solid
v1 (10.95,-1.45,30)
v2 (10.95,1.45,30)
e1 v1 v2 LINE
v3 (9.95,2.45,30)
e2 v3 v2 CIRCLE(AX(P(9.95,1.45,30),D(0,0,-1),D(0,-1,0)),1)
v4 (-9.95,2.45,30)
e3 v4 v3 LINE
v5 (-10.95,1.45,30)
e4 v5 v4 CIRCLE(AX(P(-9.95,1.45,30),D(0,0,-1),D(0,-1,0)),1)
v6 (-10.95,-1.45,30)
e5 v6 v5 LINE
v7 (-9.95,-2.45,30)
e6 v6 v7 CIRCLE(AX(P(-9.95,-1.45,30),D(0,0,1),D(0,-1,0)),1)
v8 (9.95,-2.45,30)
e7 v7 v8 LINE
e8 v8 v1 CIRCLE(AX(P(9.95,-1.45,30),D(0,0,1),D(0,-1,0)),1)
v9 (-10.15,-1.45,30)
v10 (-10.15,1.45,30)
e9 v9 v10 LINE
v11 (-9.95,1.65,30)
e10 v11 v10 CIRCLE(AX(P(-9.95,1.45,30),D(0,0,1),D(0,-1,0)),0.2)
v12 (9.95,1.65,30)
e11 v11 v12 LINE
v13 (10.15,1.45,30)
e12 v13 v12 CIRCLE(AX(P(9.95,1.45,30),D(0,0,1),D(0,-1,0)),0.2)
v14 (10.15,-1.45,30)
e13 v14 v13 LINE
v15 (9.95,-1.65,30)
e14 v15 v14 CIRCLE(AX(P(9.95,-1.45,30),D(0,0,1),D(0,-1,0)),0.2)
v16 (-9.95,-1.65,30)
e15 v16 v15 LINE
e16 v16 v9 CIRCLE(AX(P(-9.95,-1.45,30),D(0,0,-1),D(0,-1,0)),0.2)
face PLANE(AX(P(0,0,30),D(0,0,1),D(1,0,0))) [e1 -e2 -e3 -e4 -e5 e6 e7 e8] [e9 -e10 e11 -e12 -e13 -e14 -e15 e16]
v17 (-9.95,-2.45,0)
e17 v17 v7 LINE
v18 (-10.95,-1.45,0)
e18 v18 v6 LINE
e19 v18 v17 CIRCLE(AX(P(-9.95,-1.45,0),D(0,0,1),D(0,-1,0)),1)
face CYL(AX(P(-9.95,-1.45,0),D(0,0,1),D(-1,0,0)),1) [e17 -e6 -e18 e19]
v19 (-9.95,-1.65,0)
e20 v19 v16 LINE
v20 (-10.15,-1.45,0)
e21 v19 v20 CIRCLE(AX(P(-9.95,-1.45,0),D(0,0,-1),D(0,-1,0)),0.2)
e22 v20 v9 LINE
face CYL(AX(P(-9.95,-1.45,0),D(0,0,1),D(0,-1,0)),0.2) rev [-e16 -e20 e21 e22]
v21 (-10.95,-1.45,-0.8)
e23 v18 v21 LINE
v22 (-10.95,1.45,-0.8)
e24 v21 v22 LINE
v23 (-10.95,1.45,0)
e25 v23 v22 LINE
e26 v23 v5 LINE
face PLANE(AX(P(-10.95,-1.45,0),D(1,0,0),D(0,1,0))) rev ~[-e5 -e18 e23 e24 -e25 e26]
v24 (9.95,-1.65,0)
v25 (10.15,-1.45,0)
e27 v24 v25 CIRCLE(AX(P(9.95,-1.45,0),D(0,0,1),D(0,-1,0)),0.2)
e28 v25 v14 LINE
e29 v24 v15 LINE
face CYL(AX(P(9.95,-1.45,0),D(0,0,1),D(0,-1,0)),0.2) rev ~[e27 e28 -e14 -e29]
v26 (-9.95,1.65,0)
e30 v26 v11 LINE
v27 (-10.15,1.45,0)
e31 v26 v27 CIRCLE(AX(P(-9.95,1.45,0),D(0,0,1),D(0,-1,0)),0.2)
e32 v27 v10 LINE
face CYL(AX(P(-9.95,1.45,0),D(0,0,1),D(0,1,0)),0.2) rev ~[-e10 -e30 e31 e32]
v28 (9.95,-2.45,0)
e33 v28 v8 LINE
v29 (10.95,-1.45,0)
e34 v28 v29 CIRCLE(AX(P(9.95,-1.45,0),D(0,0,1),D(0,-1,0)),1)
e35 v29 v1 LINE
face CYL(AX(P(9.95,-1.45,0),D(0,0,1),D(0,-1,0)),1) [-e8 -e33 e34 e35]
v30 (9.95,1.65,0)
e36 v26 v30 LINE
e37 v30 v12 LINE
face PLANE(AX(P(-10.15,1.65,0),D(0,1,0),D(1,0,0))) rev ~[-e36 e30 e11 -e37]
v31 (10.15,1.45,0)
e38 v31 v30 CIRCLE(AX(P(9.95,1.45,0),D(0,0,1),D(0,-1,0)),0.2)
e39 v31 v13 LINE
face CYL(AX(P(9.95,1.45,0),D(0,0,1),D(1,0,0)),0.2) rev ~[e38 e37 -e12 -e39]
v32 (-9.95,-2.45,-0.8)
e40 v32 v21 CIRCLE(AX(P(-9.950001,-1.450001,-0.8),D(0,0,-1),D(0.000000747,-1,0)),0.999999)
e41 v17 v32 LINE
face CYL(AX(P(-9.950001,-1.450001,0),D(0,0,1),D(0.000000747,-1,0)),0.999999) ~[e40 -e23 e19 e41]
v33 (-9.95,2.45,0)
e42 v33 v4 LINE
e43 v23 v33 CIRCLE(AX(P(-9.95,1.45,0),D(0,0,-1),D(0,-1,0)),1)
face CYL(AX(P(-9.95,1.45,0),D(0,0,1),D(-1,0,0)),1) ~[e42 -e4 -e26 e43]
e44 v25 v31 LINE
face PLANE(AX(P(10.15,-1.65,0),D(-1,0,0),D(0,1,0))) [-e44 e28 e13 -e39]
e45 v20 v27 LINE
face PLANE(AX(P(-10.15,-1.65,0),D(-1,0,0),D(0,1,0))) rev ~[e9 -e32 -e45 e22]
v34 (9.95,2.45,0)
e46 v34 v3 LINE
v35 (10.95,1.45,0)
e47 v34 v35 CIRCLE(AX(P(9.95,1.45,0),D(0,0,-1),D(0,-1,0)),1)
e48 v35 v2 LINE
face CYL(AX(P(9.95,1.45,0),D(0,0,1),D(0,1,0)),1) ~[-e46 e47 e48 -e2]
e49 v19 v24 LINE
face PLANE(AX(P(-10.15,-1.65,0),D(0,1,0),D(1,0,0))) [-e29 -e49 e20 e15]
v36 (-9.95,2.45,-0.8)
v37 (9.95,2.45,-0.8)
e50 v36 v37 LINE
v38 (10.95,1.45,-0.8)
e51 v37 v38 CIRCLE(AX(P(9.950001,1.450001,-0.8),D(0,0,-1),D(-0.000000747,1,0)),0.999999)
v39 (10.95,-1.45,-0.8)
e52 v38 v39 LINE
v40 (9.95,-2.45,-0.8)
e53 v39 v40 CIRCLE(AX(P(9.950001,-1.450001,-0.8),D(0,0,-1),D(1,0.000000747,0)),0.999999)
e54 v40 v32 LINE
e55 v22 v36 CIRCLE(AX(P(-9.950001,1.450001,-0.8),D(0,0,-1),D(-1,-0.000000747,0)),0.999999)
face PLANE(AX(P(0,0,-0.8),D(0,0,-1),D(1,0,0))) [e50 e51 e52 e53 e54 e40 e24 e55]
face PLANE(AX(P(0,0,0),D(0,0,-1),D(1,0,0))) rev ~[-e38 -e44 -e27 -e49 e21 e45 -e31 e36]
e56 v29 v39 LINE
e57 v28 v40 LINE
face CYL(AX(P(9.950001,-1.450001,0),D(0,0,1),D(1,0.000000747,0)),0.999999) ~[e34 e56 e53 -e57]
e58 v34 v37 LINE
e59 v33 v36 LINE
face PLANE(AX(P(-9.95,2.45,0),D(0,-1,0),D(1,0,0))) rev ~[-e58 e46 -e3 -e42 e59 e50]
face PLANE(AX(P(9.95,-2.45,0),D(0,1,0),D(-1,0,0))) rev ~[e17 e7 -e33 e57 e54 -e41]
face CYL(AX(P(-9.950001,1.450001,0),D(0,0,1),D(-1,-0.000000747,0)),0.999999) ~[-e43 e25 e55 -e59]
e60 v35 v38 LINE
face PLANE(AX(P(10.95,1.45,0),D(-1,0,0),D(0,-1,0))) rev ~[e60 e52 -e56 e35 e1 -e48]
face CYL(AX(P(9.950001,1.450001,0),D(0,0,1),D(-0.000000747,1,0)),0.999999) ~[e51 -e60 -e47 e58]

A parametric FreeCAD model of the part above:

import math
import FreeCAD as App
import Part
import Sketcher
Q = App.Units.Quantity


def edges_at(feature, points):
    """Names of the edges that pass closest to the given points."""
    edges = feature.Shape.Edges
    near = lambda p: min(range(len(edges)), key=lambda i: edges[i].distToShape(Part.Vertex(*p))[0])
    return sorted({f"Edge{near(p) + 1}" for p in points})


def add_polygon(sketch, points):
    """Adds a closed chain of lines whose ends are joined by coincident constraints."""
    first, n = sketch.GeometryCount, len(points)
    for a, b in zip(points, points[1:] + points[:1]):
        sketch.addGeometry(Part.LineSegment(App.Vector(*a, 0), App.Vector(*b, 0)), False)
    for i in range(n):
        sketch.addConstraint(Sketcher.Constraint("Coincident", first + i, 2, first + (i + 1) % n, 1))

doc = App.newDocument("Part")
body = doc.addObject("PartDesign::Body", "Body")

# Sketch on XY plane
sketch1 = body.newObject("Sketcher::SketchObject", "Sketch")
sketch1.AttachmentSupport = (doc.getObject("XY_Plane"), [""])
sketch1.MapMode = "FlatFace"
add_polygon(sketch1, [(-10.9, 2.5), (-10.9, -2.5), (10.9, -2.5), (10.9, 2.5)])  # lines 0-3
add_polygon(sketch1, [(10.2, -1.6), (-10.2, -1.6), (-10.2, 1.6), (10.2, 1.6)])  # lines 4-7
sketch1.addConstraint([
    Sketcher.Constraint("Vertical", 0),
    Sketcher.Constraint("Horizontal", 1),
    Sketcher.Constraint("Vertical", 2),
    Sketcher.Constraint("Horizontal", 3),
    Sketcher.Constraint("Horizontal", 4),
    Sketcher.Constraint("Vertical", 5),
    Sketcher.Constraint("Horizontal", 6),
    Sketcher.Constraint("Vertical", 7),
    Sketcher.Constraint("Symmetric", 0, 2, 2, 2, -1, 1),
    Sketcher.Constraint("Symmetric", 4, 2, 6, 2, -1, 1),
    Sketcher.Constraint("DistanceX", 1, 1, 1, 2, Q("21.9 mm")),
    Sketcher.Constraint("DistanceX", 4, 2, 4, 1, Q("20.3 mm")),
    Sketcher.Constraint("DistanceY", 0, 2, 0, 1, Q("4.9 mm")),
    Sketcher.Constraint("DistanceY", 5, 1, 5, 2, Q("3.3 mm")),
])
pad1 = body.newObject("PartDesign::Pad", "Pad")
pad1.Profile = sketch1
pad1.Length = 30
doc.recompute()

fillet = body.newObject("PartDesign::Fillet", "Fillet")
fillet.Base = (pad1, edges_at(pad1, [
    (-10.15, -1.65, 15),
    (10.15, 1.65, 15),
    (10.15, -1.65, 15),
    (-10.15, 1.65, 15),
]))
fillet.Radius = 0.2
doc.recompute()

fillet2 = body.newObject("PartDesign::Fillet", "Fillet001")
fillet2.Base = (fillet, edges_at(fillet, [
    (10.95, -2.45, 15),
    (10.95, 2.45, 15),
    (-10.95, -2.45, 15),
    (-10.95, 2.45, 15),
]))
fillet2.Radius = 1

# Sketch on XY plane
sketch2 = body.newObject("Sketcher::SketchObject", "Sketch001")
sketch2.AttachmentSupport = (doc.getObject("XY_Plane"), [""])
sketch2.MapMode = "FlatFace"
sketch2.addGeometry([
    Part.ArcOfCircle(Part.Circle(App.Vector(10, -1.5, 0), App.Vector(0, 0, 1), 1), math.radians(-90), math.radians(0)),  # 0
    Part.LineSegment(App.Vector(9.9, -2.5, 0), App.Vector(-9.9, -2.5, 0)),  # 1
    Part.ArcOfCircle(Part.Circle(App.Vector(-10, -1.5, 0), App.Vector(0, 0, 1), 1), math.radians(180), math.radians(270)),  # 2
    Part.LineSegment(App.Vector(-10.9, -1.4, 0), App.Vector(-10.9, 1.4, 0)),  # 3
    Part.ArcOfCircle(Part.Circle(App.Vector(-10, 1.5, 0), App.Vector(0, 0, 1), 1), math.radians(90), math.radians(180)),  # 4
    Part.LineSegment(App.Vector(-9.9, 2.5, 0), App.Vector(9.9, 2.5, 0)),  # 5
    Part.ArcOfCircle(Part.Circle(App.Vector(10, 1.5, 0), App.Vector(0, 0, 1), 1), math.radians(0), math.radians(90)),  # 6
    Part.LineSegment(App.Vector(10.9, 1.4, 0), App.Vector(10.9, -1.4, 0)),  # 7
], False)
sketch2.addConstraint([
    Sketcher.Constraint("Tangent", 0, 1, 1, 1),
    Sketcher.Constraint("Tangent", 1, 2, 2, 2),
    Sketcher.Constraint("Tangent", 2, 1, 3, 1),
    Sketcher.Constraint("Tangent", 3, 2, 4, 2),
    Sketcher.Constraint("Tangent", 4, 1, 5, 1),
    Sketcher.Constraint("Tangent", 5, 2, 6, 2),
    Sketcher.Constraint("Tangent", 6, 1, 7, 1),
    Sketcher.Constraint("Tangent", 7, 2, 0, 2),
    Sketcher.Constraint("Horizontal", 1),
    Sketcher.Constraint("Vertical", 3),
    Sketcher.Constraint("Horizontal", 5),
    Sketcher.Constraint("Vertical", 7),
    Sketcher.Constraint("Equal", 0, 2),
    Sketcher.Constraint("Equal", 2, 4),
    Sketcher.Constraint("Equal", 4, 6),
    Sketcher.Constraint("Symmetric", 0, 3, 4, 3, -1, 1),
    Sketcher.Constraint("Radius", 0, Q("0.999999 mm")),
    Sketcher.Constraint("DistanceX", 1, 2, 1, 1, Q("19.9 mm")),
    Sketcher.Constraint("DistanceY", 3, 1, 3, 2, Q("2.9 mm")),
])
pad2 = body.newObject("PartDesign::Pad", "Pad001")
pad2.Profile = sketch2
pad2.Length = 0.8
pad2.Reversed = True

doc.recompute()
